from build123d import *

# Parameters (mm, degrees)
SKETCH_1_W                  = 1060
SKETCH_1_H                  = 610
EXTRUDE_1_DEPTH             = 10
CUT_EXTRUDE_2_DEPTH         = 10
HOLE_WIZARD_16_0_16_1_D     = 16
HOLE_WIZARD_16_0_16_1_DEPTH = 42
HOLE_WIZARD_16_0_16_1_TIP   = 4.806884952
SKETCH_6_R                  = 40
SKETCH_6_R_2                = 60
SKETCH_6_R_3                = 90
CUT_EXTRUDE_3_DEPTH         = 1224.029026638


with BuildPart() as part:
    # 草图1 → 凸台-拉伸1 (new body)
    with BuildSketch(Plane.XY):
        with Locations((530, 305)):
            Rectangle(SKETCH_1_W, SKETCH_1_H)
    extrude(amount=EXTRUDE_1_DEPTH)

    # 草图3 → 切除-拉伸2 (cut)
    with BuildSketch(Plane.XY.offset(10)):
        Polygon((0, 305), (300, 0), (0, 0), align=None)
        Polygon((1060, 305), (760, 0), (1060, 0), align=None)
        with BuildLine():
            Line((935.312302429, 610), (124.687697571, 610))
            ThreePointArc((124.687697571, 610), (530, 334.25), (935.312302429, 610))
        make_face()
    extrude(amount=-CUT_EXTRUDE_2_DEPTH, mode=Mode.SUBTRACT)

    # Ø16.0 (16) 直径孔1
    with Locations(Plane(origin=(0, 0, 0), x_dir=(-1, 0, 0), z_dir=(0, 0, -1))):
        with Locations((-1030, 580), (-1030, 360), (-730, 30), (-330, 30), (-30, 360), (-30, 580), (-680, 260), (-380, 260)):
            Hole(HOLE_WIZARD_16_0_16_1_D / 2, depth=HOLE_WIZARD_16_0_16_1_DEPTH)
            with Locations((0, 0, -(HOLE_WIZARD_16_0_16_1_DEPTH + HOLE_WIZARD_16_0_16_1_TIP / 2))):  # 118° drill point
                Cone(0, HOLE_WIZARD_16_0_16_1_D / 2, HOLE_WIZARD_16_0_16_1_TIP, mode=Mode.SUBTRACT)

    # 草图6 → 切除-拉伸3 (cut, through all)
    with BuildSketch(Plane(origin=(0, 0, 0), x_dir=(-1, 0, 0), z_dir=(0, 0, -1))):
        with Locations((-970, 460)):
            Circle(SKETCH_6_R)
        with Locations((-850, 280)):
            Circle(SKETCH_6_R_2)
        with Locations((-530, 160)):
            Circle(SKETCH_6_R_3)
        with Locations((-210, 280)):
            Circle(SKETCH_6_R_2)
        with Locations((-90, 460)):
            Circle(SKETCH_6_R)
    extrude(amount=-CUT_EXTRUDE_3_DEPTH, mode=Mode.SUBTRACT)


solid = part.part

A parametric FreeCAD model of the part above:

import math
import FreeCAD as App
import Part
import Sketcher
from FreeCAD import Vector
Q = App.Units.Quantity


def add_polygon(sketch, points):
    """Adds a closed chain of lines whose ends are joined by coincident constraints."""
    first, n = sketch.GeometryCount, len(points)
    for a, b in zip(points, points[1:] + points[:1]):
        sketch.addGeometry(Part.LineSegment(App.Vector(*a, 0), App.Vector(*b, 0)), False)
    for i in range(n):
        sketch.addConstraint(Sketcher.Constraint("Coincident", first + i, 2, first + (i + 1) % n, 1))

doc = App.newDocument("Part")
params = doc.addObject("Spreadsheet::Sheet", "Params")
for row, (alias, value) in enumerate([
    ("sketch1_width", "1060 mm"),
    ("sketch1_height", "610 mm"),
    ("pad1_length", "10 mm"),
    ("sketch2_width", "300 mm"),
    ("sketch2_height", "305 mm"),
    ("sketch2_radius", "435.75 mm"),
    ("pocket1_length", "10 mm"),
    ("sketch3_diameter", "16 mm"),
    ("hole_diameter", "16 mm"),
    ("hole_depth", "42 mm"),
    ("sketch4_diameter", "80 mm"),
    ("sketch4_diameter2", "120 mm"),
    ("sketch4_diameter3", "180 mm"),
], start=1):
    params.set(f"A{row}", alias)
    params.set(f"B{row}", "=" + value)
    params.setAlias(f"B{row}", alias)

body = doc.addObject("PartDesign::Body", "Body")

# Sketch on XY plane
sketch1 = doc.addObject("Sketcher::SketchObject", "Sketch")
body.addObject(sketch1)
sketch1.AttachmentSupport = (doc.XY_Plane, [""])
sketch1.MapMode = "FlatFace"
add_polygon(sketch1, [(0, 610), (0, 0), (1060, 0), (1060, 610)])  # lines 0-3
sketch1.addConstraint([
    Sketcher.Constraint("Vertical", 0),
    Sketcher.Constraint("Horizontal", 1),
    Sketcher.Constraint("Vertical", 2),
    Sketcher.Constraint("Horizontal", 3),
    Sketcher.Constraint("Coincident", 0, 2, -1, 1),
    Sketcher.Constraint("DistanceX", 1, 1, 1, 2, Q("1060 mm")),
    Sketcher.Constraint("DistanceY", 0, 2, 0, 1, Q("610 mm")),
])
sketch1.setExpression("Constraints[9]", "Params.sketch1_width")
sketch1.setExpression("Constraints[10]", "Params.sketch1_height")
pad1 = doc.addObject("PartDesign::Pad", "Pad")
body.addObject(pad1)
pad1.Profile = sketch1
pad1.setExpression("Length", "Params.pad1_length")

# Sketch on XY plane
sketch2 = doc.addObject("Sketcher::SketchObject", "Sketch001")
body.addObject(sketch2)
sketch2.AttachmentSupport = (doc.XY_Plane, [""])
sketch2.MapMode = "FlatFace"
sketch2.AttachmentOffset = App.Placement(Vector(0, 0, 10), App.Rotation())
add_polygon(sketch2, [(300, 0), (0, 305), (0, 0)])  # lines 0-2
add_polygon(sketch2, [(1060, 305), (760, 0), (1060, 0)])  # lines 3-5
sketch2.addGeometry(Part.LineSegment(Vector(935, 610, 0), Vector(125, 610, 0)), False)  # 6
sketch2.addGeometry(Part.ArcOfCircle(Part.Circle(Vector(530, 770, 0), Vector(0, 0, 1), 436), math.radians(-158), math.radians(-22)), False)  # 7
sketch2.addConstraint([
    Sketcher.Constraint("Coincident", 6, 1, 7, 2),
    Sketcher.Constraint("Coincident", 7, 1, 6, 2),
    Sketcher.Constraint("Vertical", 1),
    Sketcher.Constraint("Horizontal", 2),
    Sketcher.Constraint("Horizontal", 4),
    Sketcher.Constraint("Vertical", 5),
    Sketcher.Constraint("Horizontal", 6),
    Sketcher.Constraint("Coincident", 1, 2, -1, 1),
    Sketcher.Constraint("PointOnObject", 3, 2, -1),
    Sketcher.Constraint("Horizontal", 0, 2, 5, 2),
    Sketcher.Constraint("Equal", 2, 4),
    Sketcher.Constraint("DistanceX", 2, 1, 2, 2, Q("300 mm")),
    Sketcher.Constraint("DistanceY", 1, 2, 1, 1, Q("305 mm")),
    Sketcher.Constraint("Radius", 7, Q("435.75 mm")),
    Sketcher.Constraint("DistanceX", -1, 1, 7, 3, Q("530 mm")),
    Sketcher.Constraint("DistanceY", -1, 1, 7, 3, Q("770 mm")),
    Sketcher.Constraint("DistanceX", -1, 1, 3, 2, Q("760 mm")),
    Sketcher.Constraint("DistanceY", -1, 1, 6, 1, Q("610 mm")),
])
sketch2.setExpression("Constraints[17]", "Params.sketch2_width")
sketch2.setExpression("Constraints[18]", "Params.sketch2_height")
sketch2.setExpression("Constraints[19]", "Params.sketch2_radius")
pocket1 = doc.addObject("PartDesign::Pocket", "Pocket")
body.addObject(pocket1)
pocket1.Profile = sketch2
pocket1.setExpression("Length", "Params.pocket1_length")

# Sketch on XY plane
sketch3 = doc.addObject("Sketcher::SketchObject", "Sketch002")
body.addObject(sketch3)
sketch3.AttachmentSupport = (doc.XY_Plane, [""])
sketch3.MapMode = "FlatFace"
sketch3.addGeometry([
    Part.Circle(Vector(1030, 580, 0), Vector(0, 0, 1), 8),  # 0
    Part.Circle(Vector(1030, 360, 0), Vector(0, 0, 1), 8),  # 1
    Part.Circle(Vector(730, 30, 0), Vector(0, 0, 1), 8),  # 2
    Part.Circle(Vector(330, 30, 0), Vector(0, 0, 1), 8),  # 3
    Part.Circle(Vector(30, 360, 0), Vector(0, 0, 1), 8),  # 4
    Part.Circle(Vector(30, 580, 0), Vector(0, 0, 1), 8),  # 5
    Part.Circle(Vector(680, 260, 0), Vector(0, 0, 1), 8),  # 6
    Part.Circle(Vector(380, 260, 0), Vector(0, 0, 1), 8),  # 7
], False)
sketch3.addConstraint([
    Sketcher.Constraint("Equal", 0, 1),
    Sketcher.Constraint("Equal", 1, 2),
    Sketcher.Constraint("Equal", 2, 3),
    Sketcher.Constraint("Equal", 3, 4),
    Sketcher.Constraint("Equal", 4, 5),
    Sketcher.Constraint("Equal", 5, 6),
    Sketcher.Constraint("Equal", 6, 7),
    Sketcher.Constraint("Horizontal", 2, 3, 3, 3),
    Sketcher.Constraint("Horizontal", 1, 3, 4, 3),
    Sketcher.Constraint("Horizontal", 0, 3, 5, 3),
    Sketcher.Constraint("Horizontal", 6, 3, 7, 3),
    Sketcher.Constraint("Vertical", 0, 3, 1, 3),
    Sketcher.Constraint("Vertical", 4, 3, 5, 3),
    Sketcher.Constraint("Diameter", 0, Q("16 mm")),
    Sketcher.Constraint("DistanceX", -1, 1, 0, 3, Q("1030 mm")),
    Sketcher.Constraint("DistanceY", -1, 1, 0, 3, Q("580 mm")),
    Sketcher.Constraint("DistanceY", -1, 1, 1, 3, Q("360 mm")),
    Sketcher.Constraint("DistanceX", -1, 1, 2, 3, Q("730 mm")),
    Sketcher.Constraint("DistanceY", -1, 1, 2, 3, Q("30 mm")),
    Sketcher.Constraint("DistanceX", -1, 1, 3, 3, Q("330 mm")),
    Sketcher.Constraint("DistanceX", -1, 1, 4, 3, Q("30 mm")),
    Sketcher.Constraint("DistanceX", -1, 1, 6, 3, Q("680 mm")),
    Sketcher.Constraint("DistanceY", -1, 1, 6, 3, Q("260 mm")),
    Sketcher.Constraint("DistanceX", -1, 1, 7, 3, Q("380 mm")),
])
sketch3.setExpression("Constraints[13]", "Params.sketch3_diameter")
doc.recompute()
hole = doc.addObject("PartDesign::Hole", "Hole")
body.addObject(hole)
hole.Profile = sketch3
hole.ThreadType = "None"
hole.setExpression("Diameter", "Params.hole_diameter")
hole.DepthType = "Dimension"
hole.setExpression("Depth", "Params.hole_depth")
hole.DrillPoint = "Angled"
hole.DrillPointAngle = 118
hole.Reversed = True

# Sketch on XY plane
sketch4 = doc.addObject("Sketcher::SketchObject", "Sketch003")
body.addObject(sketch4)
sketch4.AttachmentSupport = (doc.XY_Plane, [""])
sketch4.MapMode = "FlatFace"
sketch4.addGeometry([
    Part.Circle(Vector(970, 460, 0), Vector(0, 0, 1), 40),  # 0
    Part.Circle(Vector(850, 280, 0), Vector(0, 0, 1), 60),  # 1
    Part.Circle(Vector(530, 160, 0), Vector(0, 0, 1), 90),  # 2
    Part.Circle(Vector(210, 280, 0), Vector(0, 0, 1), 60),  # 3
    Part.Circle(Vector(90, 460, 0), Vector(0, 0, 1), 40),  # 4
], False)
sketch4.addConstraint([
    Sketcher.Constraint("Equal", 1, 3),
    Sketcher.Constraint("Equal", 0, 4),
    Sketcher.Constraint("Horizontal", 1, 3, 3, 3),
    Sketcher.Constraint("Horizontal", 0, 3, 4, 3),
    Sketcher.Constraint("Diameter", 0, Q("80 mm")),
    Sketcher.Constraint("Diameter", 1, Q("120 mm")),
    Sketcher.Constraint("Diameter", 2, Q("180 mm")),
    Sketcher.Constraint("DistanceX", -1, 1, 0, 3, Q("970 mm")),
    Sketcher.Constraint("DistanceY", -1, 1, 0, 3, Q("460 mm")),
    Sketcher.Constraint("DistanceX", -1, 1, 1, 3, Q("850 mm")),
    Sketcher.Constraint("DistanceY", -1, 1, 1, 3, Q("280 mm")),
    Sketcher.Constraint("DistanceX", -1, 1, 2, 3, Q("530 mm")),
    Sketcher.Constraint("DistanceY", -1, 1, 2, 3, Q("160 mm")),
    Sketcher.Constraint("DistanceX", -1, 1, 3, 3, Q("210 mm")),
    Sketcher.Constraint("DistanceX", -1, 1, 4, 3, Q("90 mm")),
])
sketch4.setExpression("Constraints[4]", "Params.sketch4_diameter")
sketch4.setExpression("Constraints[5]", "Params.sketch4_diameter2")
sketch4.setExpression("Constraints[6]", "Params.sketch4_diameter3")
pocket2 = doc.addObject("PartDesign::Pocket", "Pocket001")
body.addObject(pocket2)
pocket2.Profile = sketch4
pocket2.Type = "ThroughAll"
pocket2.Reversed = True

doc.recompute()
